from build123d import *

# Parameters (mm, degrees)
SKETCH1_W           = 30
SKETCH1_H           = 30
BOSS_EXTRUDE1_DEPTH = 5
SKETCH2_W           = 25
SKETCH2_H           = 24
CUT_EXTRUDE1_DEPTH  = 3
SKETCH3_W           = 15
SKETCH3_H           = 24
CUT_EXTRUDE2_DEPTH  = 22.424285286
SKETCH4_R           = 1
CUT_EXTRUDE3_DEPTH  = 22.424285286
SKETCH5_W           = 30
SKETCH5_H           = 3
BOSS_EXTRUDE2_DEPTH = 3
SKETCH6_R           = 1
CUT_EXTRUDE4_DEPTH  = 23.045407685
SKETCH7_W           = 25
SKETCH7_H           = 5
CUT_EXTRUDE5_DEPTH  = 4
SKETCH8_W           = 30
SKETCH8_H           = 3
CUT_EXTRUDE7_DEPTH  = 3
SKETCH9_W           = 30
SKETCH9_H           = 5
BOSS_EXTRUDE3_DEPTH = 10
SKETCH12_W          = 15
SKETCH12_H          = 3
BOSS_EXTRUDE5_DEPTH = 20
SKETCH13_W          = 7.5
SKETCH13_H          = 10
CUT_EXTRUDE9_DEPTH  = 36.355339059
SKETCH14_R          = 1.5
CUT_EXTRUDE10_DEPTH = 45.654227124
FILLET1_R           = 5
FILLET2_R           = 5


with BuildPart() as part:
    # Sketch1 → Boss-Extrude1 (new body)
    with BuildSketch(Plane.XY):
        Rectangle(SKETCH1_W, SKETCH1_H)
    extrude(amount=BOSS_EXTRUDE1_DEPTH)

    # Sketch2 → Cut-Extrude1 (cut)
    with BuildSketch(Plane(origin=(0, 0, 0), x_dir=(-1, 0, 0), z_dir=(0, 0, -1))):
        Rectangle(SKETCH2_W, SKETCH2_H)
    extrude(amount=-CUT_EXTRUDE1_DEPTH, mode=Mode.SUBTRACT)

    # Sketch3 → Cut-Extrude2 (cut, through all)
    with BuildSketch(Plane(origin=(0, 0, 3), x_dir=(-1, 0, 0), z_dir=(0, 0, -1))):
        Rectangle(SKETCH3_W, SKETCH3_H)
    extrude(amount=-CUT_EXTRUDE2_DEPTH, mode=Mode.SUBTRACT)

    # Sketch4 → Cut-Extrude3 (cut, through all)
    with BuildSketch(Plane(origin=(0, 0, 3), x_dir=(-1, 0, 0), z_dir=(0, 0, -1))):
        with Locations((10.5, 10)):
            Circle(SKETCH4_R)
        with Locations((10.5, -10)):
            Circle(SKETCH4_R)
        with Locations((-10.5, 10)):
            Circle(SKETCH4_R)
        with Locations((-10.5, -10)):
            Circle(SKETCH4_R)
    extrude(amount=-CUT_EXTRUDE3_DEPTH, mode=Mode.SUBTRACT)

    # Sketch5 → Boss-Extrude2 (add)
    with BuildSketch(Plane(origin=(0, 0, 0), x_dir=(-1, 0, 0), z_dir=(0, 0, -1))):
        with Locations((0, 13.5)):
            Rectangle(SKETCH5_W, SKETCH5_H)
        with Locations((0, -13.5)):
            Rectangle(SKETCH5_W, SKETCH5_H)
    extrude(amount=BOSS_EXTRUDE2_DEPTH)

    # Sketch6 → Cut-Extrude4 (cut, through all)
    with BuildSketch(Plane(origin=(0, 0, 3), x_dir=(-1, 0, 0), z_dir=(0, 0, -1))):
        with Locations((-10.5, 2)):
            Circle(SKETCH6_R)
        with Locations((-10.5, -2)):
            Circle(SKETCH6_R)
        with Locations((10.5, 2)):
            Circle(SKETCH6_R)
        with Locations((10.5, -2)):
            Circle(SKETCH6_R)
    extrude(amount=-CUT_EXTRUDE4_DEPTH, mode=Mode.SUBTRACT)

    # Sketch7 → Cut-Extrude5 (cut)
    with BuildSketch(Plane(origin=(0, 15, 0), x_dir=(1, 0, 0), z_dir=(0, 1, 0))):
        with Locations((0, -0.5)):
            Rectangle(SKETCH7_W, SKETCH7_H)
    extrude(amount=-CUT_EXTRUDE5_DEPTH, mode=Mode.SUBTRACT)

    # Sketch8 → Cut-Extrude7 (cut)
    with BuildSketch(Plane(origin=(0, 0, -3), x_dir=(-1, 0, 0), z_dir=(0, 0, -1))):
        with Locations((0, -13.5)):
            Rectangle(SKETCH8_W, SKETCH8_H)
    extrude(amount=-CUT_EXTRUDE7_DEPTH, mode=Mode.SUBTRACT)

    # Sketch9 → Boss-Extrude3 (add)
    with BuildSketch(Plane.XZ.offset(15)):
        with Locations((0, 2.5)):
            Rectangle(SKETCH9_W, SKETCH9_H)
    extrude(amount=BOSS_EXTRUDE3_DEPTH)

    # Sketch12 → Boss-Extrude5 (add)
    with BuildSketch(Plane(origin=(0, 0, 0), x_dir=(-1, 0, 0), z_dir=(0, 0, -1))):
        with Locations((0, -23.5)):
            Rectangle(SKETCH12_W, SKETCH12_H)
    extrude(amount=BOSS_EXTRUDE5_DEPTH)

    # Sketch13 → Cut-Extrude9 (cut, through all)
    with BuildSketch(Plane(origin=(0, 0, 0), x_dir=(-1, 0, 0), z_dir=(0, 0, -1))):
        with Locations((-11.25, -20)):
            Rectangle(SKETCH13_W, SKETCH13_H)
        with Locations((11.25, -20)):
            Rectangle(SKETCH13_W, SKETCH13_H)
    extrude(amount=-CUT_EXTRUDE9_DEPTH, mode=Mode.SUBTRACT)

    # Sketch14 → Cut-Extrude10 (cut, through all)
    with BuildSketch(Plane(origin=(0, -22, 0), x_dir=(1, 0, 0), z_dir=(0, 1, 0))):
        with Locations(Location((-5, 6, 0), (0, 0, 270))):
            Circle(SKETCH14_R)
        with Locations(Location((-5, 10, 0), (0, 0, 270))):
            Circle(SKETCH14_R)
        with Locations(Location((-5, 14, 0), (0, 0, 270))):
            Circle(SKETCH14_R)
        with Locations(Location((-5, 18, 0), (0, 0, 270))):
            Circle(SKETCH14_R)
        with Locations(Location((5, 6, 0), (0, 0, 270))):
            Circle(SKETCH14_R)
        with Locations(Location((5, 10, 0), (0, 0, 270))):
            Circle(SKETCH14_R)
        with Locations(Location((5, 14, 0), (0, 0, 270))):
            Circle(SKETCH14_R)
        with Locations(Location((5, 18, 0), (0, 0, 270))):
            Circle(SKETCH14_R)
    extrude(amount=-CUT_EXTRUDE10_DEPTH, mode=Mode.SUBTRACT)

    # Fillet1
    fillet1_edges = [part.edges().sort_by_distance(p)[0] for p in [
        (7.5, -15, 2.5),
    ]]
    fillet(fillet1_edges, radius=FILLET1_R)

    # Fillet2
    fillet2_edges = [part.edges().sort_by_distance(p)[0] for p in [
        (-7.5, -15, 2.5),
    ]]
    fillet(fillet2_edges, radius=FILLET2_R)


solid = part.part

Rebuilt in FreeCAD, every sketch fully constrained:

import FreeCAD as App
import Part
import Sketcher
from FreeCAD import Vector
Q = App.Units.Quantity


def edges_at(feature, points):
    """Names of the edges that pass closest to the given points."""
    edges = feature.Shape.Edges
    near = lambda p: min(range(len(edges)), key=lambda i: edges[i].distToShape(Part.Vertex(*p))[0])
    return sorted({f"Edge{near(p) + 1}" for p in points})


def add_polygon(sketch, points):
    """Adds a closed chain of lines whose ends are joined by coincident constraints."""
    first, n = sketch.GeometryCount, len(points)
    for a, b in zip(points, points[1:] + points[:1]):
        sketch.addGeometry(Part.LineSegment(App.Vector(*a, 0), App.Vector(*b, 0)), False)
    for i in range(n):
        sketch.addConstraint(Sketcher.Constraint("Coincident", first + i, 2, first + (i + 1) % n, 1))

doc = App.newDocument("Part")
params = doc.addObject("Spreadsheet::Sheet", "Params")
for row, (alias, value) in enumerate([
    ("sketch1_width", "30 mm"),
    ("pad1_length", "5 mm"),
    ("sketch2_width", "25 mm"),
    ("sketch2_height", "24 mm"),
    ("pocket1_length", "3 mm"),
    ("sketch3_width", "15 mm"),
    ("sketch3_height", "24 mm"),
    ("sketch4_diameter", "2 mm"),
    ("sketch5_width", "30 mm"),
    ("sketch5_height", "3 mm"),
    ("pad2_length", "3 mm"),
    ("sketch6_diameter", "2 mm"),
    ("sketch7_width", "25 mm"),
    ("sketch7_height", "5 mm"),
    ("pocket5_length", "4 mm"),
    ("sketch8_width", "30 mm"),
    ("sketch8_height", "3 mm"),
    ("pocket6_length", "3 mm"),
    ("sketch9_width", "30 mm"),
    ("sketch9_height", "5 mm"),
    ("pad3_length", "10 mm"),
    ("sketch10_width", "15 mm"),
    ("sketch10_height", "3 mm"),
    ("pad4_length", "20 mm"),
    ("sketch11_height", "10 mm"),
    ("sketch11_width", "7.5 mm"),
    ("sketch12_diameter", "3 mm"),
    ("fillet_radius", "5 mm"),
    ("fillet2_radius", "5 mm"),
], start=1):
    params.set(f"A{row}", alias)
    params.set(f"B{row}", "=" + value)
    params.setAlias(f"B{row}", alias)

body = doc.addObject("PartDesign::Body", "Body")

sketch1 = body.newObject("Sketcher::SketchObject", "Sketch")
sketch1.AttachmentSupport = (doc.getObject("XY_Plane"), [""])
sketch1.MapMode = "FlatFace"
add_polygon(sketch1, [(-15, 15), (-15, -15), (15, -15), (15, 15)])
sketch1.addConstraint(Sketcher.Constraint("Vertical", 0))
sketch1.addConstraint(Sketcher.Constraint("Horizontal", 1))
sketch1.addConstraint(Sketcher.Constraint("Vertical", 2))
sketch1.addConstraint(Sketcher.Constraint("Horizontal", 3))
sketch1.addConstraint(Sketcher.Constraint("Symmetric", 0, 2, 2, 2, -1, 1))
sketch1.addConstraint(Sketcher.Constraint("Equal", 3, 0))
sketch1.addConstraint(Sketcher.Constraint("DistanceX", 1, 1, 1, 2, Q("30 mm")))
sketch1.setExpression("Constraints[10]", "Params.sketch1_width")
pad1 = body.newObject("PartDesign::Pad", "Pad")
pad1.Profile = sketch1
pad1.setExpression("Length", "Params.pad1_length")

sketch2 = body.newObject("Sketcher::SketchObject", "Sketch001")
sketch2.AttachmentSupport = (doc.getObject("XY_Plane"), [""])
sketch2.MapMode = "FlatFace"
add_polygon(sketch2, [(12, 12), (12, -12), (-12, -12), (-12, 12)])
sketch2.addConstraint(Sketcher.Constraint("Vertical", 0))
sketch2.addConstraint(Sketcher.Constraint("Horizontal", 1))
sketch2.addConstraint(Sketcher.Constraint("Vertical", 2))
sketch2.addConstraint(Sketcher.Constraint("Horizontal", 3))
sketch2.addConstraint(Sketcher.Constraint("Symmetric", 0, 2, 2, 2, -1, 1))
sketch2.addConstraint(Sketcher.Constraint("DistanceX", 1, 2, 1, 1, Q("25 mm")))
sketch2.addConstraint(Sketcher.Constraint("DistanceY", 0, 2, 0, 1, Q("24 mm")))
sketch2.setExpression("Constraints[9]", "Params.sketch2_width")
sketch2.setExpression("Constraints[10]", "Params.sketch2_height")
pocket1 = body.newObject("PartDesign::Pocket", "Pocket")
pocket1.Profile = sketch2
pocket1.setExpression("Length", "Params.pocket1_length")
pocket1.Reversed = True

sketch3 = body.newObject("Sketcher::SketchObject", "Sketch002")
sketch3.AttachmentSupport = (doc.getObject("XY_Plane"), [""])
sketch3.MapMode = "FlatFace"
sketch3.AttachmentOffset = App.Placement(Vector(0, 0, 3), App.Rotation())
add_polygon(sketch3, [(8, 12), (8, -12), (-8, -12), (-8, 12)])
sketch3.addConstraint(Sketcher.Constraint("Vertical", 0))
sketch3.addConstraint(Sketcher.Constraint("Horizontal", 1))
sketch3.addConstraint(Sketcher.Constraint("Vertical", 2))
sketch3.addConstraint(Sketcher.Constraint("Horizontal", 3))
sketch3.addConstraint(Sketcher.Constraint("Symmetric", 0, 2, 2, 2, -1, 1))
sketch3.addConstraint(Sketcher.Constraint("DistanceX", 1, 2, 1, 1, Q("15 mm")))
sketch3.addConstraint(Sketcher.Constraint("DistanceY", 0, 2, 0, 1, Q("24 mm")))
sketch3.setExpression("Constraints[9]", "Params.sketch3_width")
sketch3.setExpression("Constraints[10]", "Params.sketch3_height")
pocket2 = body.newObject("PartDesign::Pocket", "Pocket001")
pocket2.Profile = sketch3
pocket2.Type = "ThroughAll"
pocket2.Reversed = True

sketch4 = body.newObject("Sketcher::SketchObject", "Sketch003")
sketch4.AttachmentSupport = (doc.getObject("XY_Plane"), [""])
sketch4.MapMode = "FlatFace"
sketch4.AttachmentOffset = App.Placement(Vector(0, 0, 3), App.Rotation())
sketch4.addGeometry(Part.Circle(Vector(-10.5, 10, 0), Vector(0, 0, 1), 1), False)
sketch4.addGeometry(Part.Circle(Vector(-10.5, -10, 0), Vector(0, 0, 1), 1), False)
sketch4.addGeometry(Part.Circle(Vector(10.5, 10, 0), Vector(0, 0, 1), 1), False)
sketch4.addGeometry(Part.Circle(Vector(10.5, -10, 0), Vector(0, 0, 1), 1), False)
sketch4.addConstraint(Sketcher.Constraint("Equal", 0, 1))
sketch4.addConstraint(Sketcher.Constraint("Equal", 1, 2))
sketch4.addConstraint(Sketcher.Constraint("Equal", 2, 3))
sketch4.addConstraint(Sketcher.Constraint("Symmetric", 1, 3, 2, 3, -1, 1))
sketch4.addConstraint(Sketcher.Constraint("Symmetric", 0, 3, 3, 3, -1, 1))
sketch4.addConstraint(Sketcher.Constraint("Symmetric", 0, 3, 2, 3, -2))
sketch4.addConstraint(Sketcher.Constraint("Diameter", 0, Q("2 mm")))
sketch4.addConstraint(Sketcher.Constraint("DistanceY", -1, 1, 0, 3, Q("10 mm")))
sketch4.addConstraint(Sketcher.Constraint("DistanceX", 0, 3, 2, 3, Q("21 mm")))
sketch4.setExpression("Constraints[6]", "Params.sketch4_diameter")
pocket3 = body.newObject("PartDesign::Pocket", "Pocket002")
pocket3.Profile = sketch4
pocket3.Type = "ThroughAll"
pocket3.Reversed = True

sketch5 = body.newObject("Sketcher::SketchObject", "Sketch004")
sketch5.AttachmentSupport = (doc.getObject("XY_Plane"), [""])
sketch5.MapMode = "FlatFace"
add_polygon(sketch5, [(15, 15), (15, 12), (-15, 12), (-15, 15)])
add_polygon(sketch5, [(15, -12), (15, -15), (-15, -15), (-15, -12)])
sketch5.addConstraint(Sketcher.Constraint("Vertical", 0))
sketch5.addConstraint(Sketcher.Constraint("Horizontal", 1))
sketch5.addConstraint(Sketcher.Constraint("Vertical", 2))
sketch5.addConstraint(Sketcher.Constraint("Horizontal", 3))
sketch5.addConstraint(Sketcher.Constraint("Vertical", 4))
sketch5.addConstraint(Sketcher.Constraint("Horizontal", 5))
sketch5.addConstraint(Sketcher.Constraint("Vertical", 6))
sketch5.addConstraint(Sketcher.Constraint("Horizontal", 7))
sketch5.addConstraint(Sketcher.Constraint("Symmetric", 2, 2, 4, 2, -1, 1))
sketch5.addConstraint(Sketcher.Constraint("Symmetric", 0, 2, 6, 2, -1, 1))
sketch5.addConstraint(Sketcher.Constraint("Vertical", 3, 2, 4, 2))
sketch5.addConstraint(Sketcher.Constraint("DistanceX", 1, 2, 1, 1, Q("30 mm")))
sketch5.addConstraint(Sketcher.Constraint("DistanceY", 0, 2, 0, 1, Q("3 mm")))
sketch5.addConstraint(Sketcher.Constraint("DistanceY", -1, 1, 0, 2, Q("12 mm")))
sketch5.setExpression("Constraints[19]", "Params.sketch5_width")
sketch5.setExpression("Constraints[20]", "Params.sketch5_height")
pad2 = body.newObject("PartDesign::Pad", "Pad001")
pad2.Profile = sketch5
pad2.setExpression("Length", "Params.pad2_length")
pad2.Reversed = True

sketch6 = body.newObject("Sketcher::SketchObject", "Sketch005")
sketch6.AttachmentSupport = (doc.getObject("XY_Plane"), [""])
sketch6.MapMode = "FlatFace"
sketch6.AttachmentOffset = App.Placement(Vector(0, 0, 3), App.Rotation())
sketch6.addGeometry(Part.Circle(Vector(10.5, 2, 0), Vector(0, 0, 1), 1), False)
sketch6.addGeometry(Part.Circle(Vector(10.5, -2, 0), Vector(0, 0, 1), 1), False)
sketch6.addGeometry(Part.Circle(Vector(-10.5, 2, 0), Vector(0, 0, 1), 1), False)
sketch6.addGeometry(Part.Circle(Vector(-10.5, -2, 0), Vector(0, 0, 1), 1), False)
sketch6.addConstraint(Sketcher.Constraint("Equal", 0, 1))
sketch6.addConstraint(Sketcher.Constraint("Equal", 1, 2))
sketch6.addConstraint(Sketcher.Constraint("Equal", 2, 3))
sketch6.addConstraint(Sketcher.Constraint("Symmetric", 1, 3, 2, 3, -1, 1))
sketch6.addConstraint(Sketcher.Constraint("Symmetric", 0, 3, 3, 3, -1, 1))
sketch6.addConstraint(Sketcher.Constraint("Symmetric", 0, 3, 2, 3, -2))
sketch6.addConstraint(Sketcher.Constraint("Diameter", 0, Q("2 mm")))
sketch6.addConstraint(Sketcher.Constraint("DistanceY", -1, 1, 0, 3, Q("2 mm")))
sketch6.addConstraint(Sketcher.Constraint("DistanceX", 2, 3, 0, 3, Q("21 mm")))
sketch6.setExpression("Constraints[6]", "Params.sketch6_diameter")
pocket4 = body.newObject("PartDesign::Pocket", "Pocket003")
pocket4.Profile = sketch6
pocket4.Type = "ThroughAll"
pocket4.Reversed = True

sketch7 = body.newObject("Sketcher::SketchObject", "Sketch006")
sketch7.AttachmentSupport = (doc.getObject("XZ_Plane"), [""])
sketch7.MapMode = "FlatFace"
sketch7.AttachmentOffset = App.Placement(Vector(0, 0, -15), App.Rotation())
add_polygon(sketch7, [(-12, -2), (-12, 3), (12, 3), (12, -2)])
sketch7.addConstraint(Sketcher.Constraint("Vertical", 0))
sketch7.addConstraint(Sketcher.Constraint("Horizontal", 1))
sketch7.addConstraint(Sketcher.Constraint("Vertical", 2))
sketch7.addConstraint(Sketcher.Constraint("Horizontal", 3))
sketch7.addConstraint(Sketcher.Constraint("DistanceX", 1, 1, 1, 2, Q("25 mm")))
sketch7.addConstraint(Sketcher.Constraint("DistanceY", 0, 1, 0, 2, Q("5 mm")))
sketch7.addConstraint(Sketcher.Constraint("DistanceY", -1, 1, 0, 2, Q("3 mm")))
sketch7.addConstraint(Sketcher.Constraint("DistanceX", 0, 2, -1, 1, Q("12.5 mm")))
sketch7.setExpression("Constraints[8]", "Params.sketch7_width")
sketch7.setExpression("Constraints[9]", "Params.sketch7_height")
pocket5 = body.newObject("PartDesign::Pocket", "Pocket004")
pocket5.Profile = sketch7
pocket5.setExpression("Length", "Params.pocket5_length")
pocket5.Reversed = True

sketch8 = body.newObject("Sketcher::SketchObject", "Sketch007")
sketch8.AttachmentSupport = (doc.getObject("XY_Plane"), [""])
sketch8.MapMode = "FlatFace"
sketch8.AttachmentOffset = App.Placement(Vector(0, 0, -3), App.Rotation())
add_polygon(sketch8, [(15, -12), (15, -15), (-15, -15), (-15, -12)])
sketch8.addConstraint(Sketcher.Constraint("Vertical", 0))
sketch8.addConstraint(Sketcher.Constraint("Horizontal", 1))
sketch8.addConstraint(Sketcher.Constraint("Vertical", 2))
sketch8.addConstraint(Sketcher.Constraint("Horizontal", 3))
sketch8.addConstraint(Sketcher.Constraint("DistanceX", 1, 2, 1, 1, Q("30 mm")))
sketch8.addConstraint(Sketcher.Constraint("DistanceY", 0, 2, 0, 1, Q("3 mm")))
sketch8.addConstraint(Sketcher.Constraint("DistanceX", -1, 1, 0, 2, Q("15 mm")))
sketch8.addConstraint(Sketcher.Constraint("DistanceY", 0, 2, -1, 1, Q("15 mm")))
sketch8.setExpression("Constraints[8]", "Params.sketch8_width")
sketch8.setExpression("Constraints[9]", "Params.sketch8_height")
pocket6 = body.newObject("PartDesign::Pocket", "Pocket005")
pocket6.Profile = sketch8
pocket6.setExpression("Length", "Params.pocket6_length")
pocket6.Reversed = True

sketch9 = body.newObject("Sketcher::SketchObject", "Sketch008")
sketch9.AttachmentSupport = (doc.getObject("XZ_Plane"), [""])
sketch9.MapMode = "FlatFace"
sketch9.AttachmentOffset = App.Placement(Vector(0, 0, 15), App.Rotation())
add_polygon(sketch9, [(-15, 5), (-15, 0), (15, 0), (15, 5)])
sketch9.addConstraint(Sketcher.Constraint("Vertical", 0))
sketch9.addConstraint(Sketcher.Constraint("Horizontal", 1))
sketch9.addConstraint(Sketcher.Constraint("Vertical", 2))
sketch9.addConstraint(Sketcher.Constraint("Horizontal", 3))
sketch9.addConstraint(Sketcher.Constraint("Symmetric", 0, 2, 1, 2, -1, 1))
sketch9.addConstraint(Sketcher.Constraint("DistanceX", 1, 1, 1, 2, Q("30 mm")))
sketch9.addConstraint(Sketcher.Constraint("DistanceY", 0, 2, 0, 1, Q("5 mm")))
sketch9.setExpression("Constraints[9]", "Params.sketch9_width")
sketch9.setExpression("Constraints[10]", "Params.sketch9_height")
pad3 = body.newObject("PartDesign::Pad", "Pad002")
pad3.Profile = sketch9
pad3.setExpression("Length", "Params.pad3_length")

sketch10 = body.newObject("Sketcher::SketchObject", "Sketch009")
sketch10.AttachmentSupport = (doc.getObject("XY_Plane"), [""])
sketch10.MapMode = "FlatFace"
add_polygon(sketch10, [(7.5, -22), (7.5, -25), (-7.5, -25), (-7.5, -22)])
sketch10.addConstraint(Sketcher.Constraint("Vertical", 0))
sketch10.addConstraint(Sketcher.Constraint("Horizontal", 1))
sketch10.addConstraint(Sketcher.Constraint("Vertical", 2))
sketch10.addConstraint(Sketcher.Constraint("Horizontal", 3))
sketch10.addConstraint(Sketcher.Constraint("DistanceX", 1, 2, 1, 1, Q("15 mm")))
sketch10.addConstraint(Sketcher.Constraint("DistanceY", 0, 2, 0, 1, Q("3 mm")))
sketch10.addConstraint(Sketcher.Constraint("DistanceY", 0, 2, -1, 1, Q("25 mm")))
sketch10.addConstraint(Sketcher.Constraint("DistanceX", -1, 1, 0, 2, Q("7.5 mm")))
sketch10.setExpression("Constraints[8]", "Params.sketch10_width")
sketch10.setExpression("Constraints[9]", "Params.sketch10_height")
pad4 = body.newObject("PartDesign::Pad", "Pad003")
pad4.Profile = sketch10
pad4.setExpression("Length", "Params.pad4_length")
pad4.Reversed = True

sketch11 = body.newObject("Sketcher::SketchObject", "Sketch010")
sketch11.AttachmentSupport = (doc.getObject("XY_Plane"), [""])
sketch11.MapMode = "FlatFace"
add_polygon(sketch11, [(15, -15), (15, -25), (8, -25), (8, -15)])
add_polygon(sketch11, [(-8, -15), (-8, -25), (-15, -25), (-15, -15)])
sketch11.addConstraint(Sketcher.Constraint("Vertical", 0))
sketch11.addConstraint(Sketcher.Constraint("Horizontal", 1))
sketch11.addConstraint(Sketcher.Constraint("Vertical", 2))
sketch11.addConstraint(Sketcher.Constraint("Horizontal", 3))
sketch11.addConstraint(Sketcher.Constraint("Vertical", 4))
sketch11.addConstraint(Sketcher.Constraint("Horizontal", 5))
sketch11.addConstraint(Sketcher.Constraint("Vertical", 6))
sketch11.addConstraint(Sketcher.Constraint("Horizontal", 7))
sketch11.addConstraint(Sketcher.Constraint("Symmetric", 1, 2, 4, 2, -2))
sketch11.addConstraint(Sketcher.Constraint("Symmetric", 3, 2, 6, 2, -2))
sketch11.addConstraint(Sketcher.Constraint("DistanceY", 0, 2, 0, 1, Q("10 mm")))
sketch11.addConstraint(Sketcher.Constraint("DistanceX", 1, 2, 1, 1, Q("7.5 mm")))
sketch11.addConstraint(Sketcher.Constraint("DistanceX", -1, 1, 0, 2, Q("15 mm")))
sketch11.addConstraint(Sketcher.Constraint("DistanceY", 0, 2, -1, 1, Q("25 mm")))
sketch11.setExpression("Constraints[18]", "Params.sketch11_height")
sketch11.setExpression("Constraints[19]", "Params.sketch11_width")
pocket7 = body.newObject("PartDesign::Pocket", "Pocket006")
pocket7.Profile = sketch11
pocket7.Type = "ThroughAll"
pocket7.Reversed = True

sketch12 = body.newObject("Sketcher::SketchObject", "Sketch011")
sketch12.AttachmentSupport = (doc.getObject("XZ_Plane"), [""])
sketch12.MapMode = "FlatFace"
sketch12.AttachmentOffset = App.Placement(Vector(0, 0, 22), App.Rotation())
sketch12.addGeometry(Part.Circle(Vector(-5, -6, 0), Vector(0, 0, 1), 1.5), False)
sketch12.addGeometry(Part.Circle(Vector(-5, -10, 0), Vector(0, 0, 1), 1.5), False)
sketch12.addGeometry(Part.Circle(Vector(-5, -14, 0), Vector(0, 0, 1), 1.5), False)
sketch12.addGeometry(Part.Circle(Vector(-5, -18, 0), Vector(0, 0, 1), 1.5), False)
sketch12.addGeometry(Part.Circle(Vector(5, -6, 0), Vector(0, 0, 1), 1.5), False)
sketch12.addGeometry(Part.Circle(Vector(5, -10, 0), Vector(0, 0, 1), 1.5), False)
sketch12.addGeometry(Part.Circle(Vector(5, -14, 0), Vector(0, 0, 1), 1.5), False)
sketch12.addGeometry(Part.Circle(Vector(5, -18, 0), Vector(0, 0, 1), 1.5), False)
sketch12.addConstraint(Sketcher.Constraint("Equal", 0, 1))
sketch12.addConstraint(Sketcher.Constraint("Equal", 1, 2))
sketch12.addConstraint(Sketcher.Constraint("Equal", 2, 3))
sketch12.addConstraint(Sketcher.Constraint("Equal", 3, 4))
sketch12.addConstraint(Sketcher.Constraint("Equal", 4, 5))
sketch12.addConstraint(Sketcher.Constraint("Equal", 5, 6))
sketch12.addConstraint(Sketcher.Constraint("Equal", 6, 7))
sketch12.addConstraint(Sketcher.Constraint("Symmetric", 0, 3, 4, 3, -2))
sketch12.addConstraint(Sketcher.Constraint("Symmetric", 1, 3, 5, 3, -2))
sketch12.addConstraint(Sketcher.Constraint("Symmetric", 2, 3, 6, 3, -2))
sketch12.addConstraint(Sketcher.Constraint("Symmetric", 3, 3, 7, 3, -2))
sketch12.addConstraint(Sketcher.Constraint("Vertical", 0, 3, 1, 3))
sketch12.addConstraint(Sketcher.Constraint("Vertical", 1, 3, 2, 3))
sketch12.addConstraint(Sketcher.Constraint("Vertical", 2, 3, 3, 3))
sketch12.addConstraint(Sketcher.Constraint("Diameter", 0, Q("3 mm")))
sketch12.addConstraint(Sketcher.Constraint("DistanceX", 0, 3, -1, 1, Q("5 mm")))
sketch12.addConstraint(Sketcher.Constraint("DistanceY", 0, 3, -1, 1, Q("6 mm")))
sketch12.addConstraint(Sketcher.Constraint("DistanceY", 1, 3, -1, 1, Q("10 mm")))
sketch12.addConstraint(Sketcher.Constraint("DistanceY", 2, 3, -1, 1, Q("14 mm")))
sketch12.addConstraint(Sketcher.Constraint("DistanceY", 3, 3, -1, 1, Q("18 mm")))
sketch12.setExpression("Constraints[14]", "Params.sketch12_diameter")
pocket8 = body.newObject("PartDesign::Pocket", "Pocket007")
pocket8.Profile = sketch12
pocket8.Type = "ThroughAll"
pocket8.Reversed = True
doc.recompute()

fillet = body.newObject("PartDesign::Fillet", "Fillet")
fillet.Base = (pocket8, edges_at(pocket8, [(7.5, -15, 2.5)]))
fillet.setExpression("Radius", "Params.fillet_radius")
doc.recompute()

fillet2 = body.newObject("PartDesign::Fillet", "Fillet001")
fillet2.Base = (fillet, edges_at(fillet, [(-7.5, -15, 2.5)]))
fillet2.setExpression("Radius", "Params.fillet2_radius")

doc.recompute()
